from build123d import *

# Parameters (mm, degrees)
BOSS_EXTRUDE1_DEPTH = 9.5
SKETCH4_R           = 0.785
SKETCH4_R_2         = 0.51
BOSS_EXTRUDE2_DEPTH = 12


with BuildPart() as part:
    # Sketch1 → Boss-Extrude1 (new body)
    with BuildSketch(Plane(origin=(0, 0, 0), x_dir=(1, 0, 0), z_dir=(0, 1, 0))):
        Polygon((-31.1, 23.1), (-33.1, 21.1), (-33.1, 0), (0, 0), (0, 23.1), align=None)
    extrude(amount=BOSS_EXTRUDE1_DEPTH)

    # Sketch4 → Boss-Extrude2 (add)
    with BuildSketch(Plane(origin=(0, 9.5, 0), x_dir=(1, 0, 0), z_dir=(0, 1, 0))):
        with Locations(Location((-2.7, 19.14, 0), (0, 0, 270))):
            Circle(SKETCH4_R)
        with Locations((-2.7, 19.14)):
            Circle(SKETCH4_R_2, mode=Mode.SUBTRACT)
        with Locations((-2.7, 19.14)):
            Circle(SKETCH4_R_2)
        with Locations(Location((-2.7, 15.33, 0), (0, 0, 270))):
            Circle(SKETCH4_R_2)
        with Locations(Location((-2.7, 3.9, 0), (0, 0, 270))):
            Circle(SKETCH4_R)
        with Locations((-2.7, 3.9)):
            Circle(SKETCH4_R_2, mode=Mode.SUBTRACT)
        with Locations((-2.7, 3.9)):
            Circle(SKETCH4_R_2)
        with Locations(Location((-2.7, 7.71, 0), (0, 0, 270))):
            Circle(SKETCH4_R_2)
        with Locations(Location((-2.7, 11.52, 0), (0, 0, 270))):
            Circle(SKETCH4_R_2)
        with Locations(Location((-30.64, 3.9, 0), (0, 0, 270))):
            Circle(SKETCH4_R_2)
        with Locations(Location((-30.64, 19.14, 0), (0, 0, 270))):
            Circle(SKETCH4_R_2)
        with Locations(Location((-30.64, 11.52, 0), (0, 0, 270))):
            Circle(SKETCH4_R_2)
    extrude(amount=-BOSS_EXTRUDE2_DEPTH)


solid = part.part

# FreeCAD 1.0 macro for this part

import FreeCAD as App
import Part
import Sketcher

V = App.Vector
Q = App.Units.Quantity

doc = App.newDocument("Part")
body = doc.addObject("PartDesign::Body", "Body")

# Sketch on XZ plane
sketch1 = body.newObject("Sketcher::SketchObject", "Sketch")
sketch1.AttachmentSupport = (doc.getObject("XZ_Plane"), [""])
sketch1.MapMode = "FlatFace"
sketch1.addGeometry(Part.LineSegment(V(-31.1, -23.1, 0), V(-33.1, -21.1, 0)), False)
sketch1.addGeometry(Part.LineSegment(V(-33.1, -21.1, 0), V(-33.1, 0, 0)), False)
sketch1.addGeometry(Part.LineSegment(V(-33.1, 0, 0), V(0, 0, 0)), False)
sketch1.addGeometry(Part.LineSegment(V(0, 0, 0), V(0, -23.1, 0)), False)
sketch1.addGeometry(Part.LineSegment(V(0, -23.1, 0), V(-31.1, -23.1, 0)), False)
sketch1.addConstraint(Sketcher.Constraint("Coincident", 0, 2, 1, 1))
sketch1.addConstraint(Sketcher.Constraint("Coincident", 1, 2, 2, 1))
sketch1.addConstraint(Sketcher.Constraint("Coincident", 2, 2, 3, 1))
sketch1.addConstraint(Sketcher.Constraint("Coincident", 3, 2, 4, 1))
sketch1.addConstraint(Sketcher.Constraint("Coincident", 4, 2, 0, 1))
sketch1.addConstraint(Sketcher.Constraint("Vertical", 1))
sketch1.addConstraint(Sketcher.Constraint("Horizontal", 2))
sketch1.addConstraint(Sketcher.Constraint("Vertical", 3))
sketch1.addConstraint(Sketcher.Constraint("Horizontal", 4))
sketch1.addConstraint(Sketcher.Constraint("Coincident", 2, 2, -1, 1))
sketch1.addConstraint(Sketcher.Constraint("Angle", 0, Q("135 deg")))
sketch1.addConstraint(Sketcher.Constraint("DistanceX", 2, 1, 2, 2, Q("33.1 mm")))
sketch1.addConstraint(Sketcher.Constraint("DistanceX", 4, 2, 4, 1, Q("31.1 mm")))
sketch1.addConstraint(Sketcher.Constraint("DistanceY", 1, 1, 1, 2, Q("21.1 mm")))
pad1 = body.newObject("PartDesign::Pad", "Pad")
pad1.Profile = sketch1
pad1.Length = 9.5
pad1.Reversed = True

# Sketch on XZ plane
sketch2 = body.newObject("Sketcher::SketchObject", "Sketch001")
sketch2.AttachmentSupport = (doc.getObject("XZ_Plane"), [""])
sketch2.MapMode = "FlatFace"
sketch2.AttachmentOffset = App.Placement(V(0, 0, -9.5), App.Rotation())
sketch2.addGeometry(Part.Circle(V(-2.7, -19.14, 0), V(0, 0, 1), 0.785), False)
sketch2.addGeometry(Part.Circle(V(-2.7, -15.33, 0), V(0, 0, 1), 0.51), False)
sketch2.addGeometry(Part.Circle(V(-2.7, -3.9, 0), V(0, 0, 1), 0.785), False)
sketch2.addGeometry(Part.Circle(V(-2.7, -7.71, 0), V(0, 0, 1), 0.51), False)
sketch2.addGeometry(Part.Circle(V(-2.7, -11.52, 0), V(0, 0, 1), 0.51), False)
sketch2.addGeometry(Part.Circle(V(-30.64, -3.9, 0), V(0, 0, 1), 0.51), False)
sketch2.addGeometry(Part.Circle(V(-30.64, -19.14, 0), V(0, 0, 1), 0.51), False)
sketch2.addGeometry(Part.Circle(V(-30.64, -11.52, 0), V(0, 0, 1), 0.51), False)
sketch2.addConstraint(Sketcher.Constraint("Equal", 0, 2))
sketch2.addConstraint(Sketcher.Constraint("Equal", 1, 3))
sketch2.addConstraint(Sketcher.Constraint("Equal", 3, 4))
sketch2.addConstraint(Sketcher.Constraint("Equal", 4, 5))
sketch2.addConstraint(Sketcher.Constraint("Equal", 5, 6))
sketch2.addConstraint(Sketcher.Constraint("Equal", 6, 7))
sketch2.addConstraint(Sketcher.Constraint("Horizontal", 2, 3, 5, 3))
sketch2.addConstraint(Sketcher.Constraint("Horizontal", 0, 3, 6, 3))
sketch2.addConstraint(Sketcher.Constraint("Horizontal", 4, 3, 7, 3))
sketch2.addConstraint(Sketcher.Constraint("Vertical", 0, 3, 1, 3))
sketch2.addConstraint(Sketcher.Constraint("Vertical", 1, 3, 2, 3))
sketch2.addConstraint(Sketcher.Constraint("Vertical", 2, 3, 3, 3))
sketch2.addConstraint(Sketcher.Constraint("Vertical", 3, 3, 4, 3))
sketch2.addConstraint(Sketcher.Constraint("Vertical", 5, 3, 6, 3))
sketch2.addConstraint(Sketcher.Constraint("Vertical", 6, 3, 7, 3))
sketch2.addConstraint(Sketcher.Constraint("Diameter", 0, Q("1.57 mm")))
sketch2.addConstraint(Sketcher.Constraint("Diameter", 1, Q("1.02 mm")))
sketch2.addConstraint(Sketcher.Constraint("DistanceX", 0, 3, -1, 1, Q("2.7 mm")))
sketch2.addConstraint(Sketcher.Constraint("DistanceY", 2, 3, -1, 1, Q("3.9 mm")))
sketch2.addConstraint(Sketcher.Constraint("DistanceY", 0, 3, -1, 1, Q("19.14 mm")))
sketch2.addConstraint(Sketcher.Constraint("DistanceY", 1, 3, -1, 1, Q("15.33 mm")))
sketch2.addConstraint(Sketcher.Constraint("DistanceY", 3, 3, -1, 1, Q("7.71 mm")))
sketch2.addConstraint(Sketcher.Constraint("DistanceY", 4, 3, -1, 1, Q("11.52 mm")))
sketch2.addConstraint(Sketcher.Constraint("DistanceX", 5, 3, -1, 1, Q("30.64 mm")))
pad2 = body.newObject("PartDesign::Pad", "Pad001")
pad2.Profile = sketch2
pad2.Length = 12

doc.recompute()
